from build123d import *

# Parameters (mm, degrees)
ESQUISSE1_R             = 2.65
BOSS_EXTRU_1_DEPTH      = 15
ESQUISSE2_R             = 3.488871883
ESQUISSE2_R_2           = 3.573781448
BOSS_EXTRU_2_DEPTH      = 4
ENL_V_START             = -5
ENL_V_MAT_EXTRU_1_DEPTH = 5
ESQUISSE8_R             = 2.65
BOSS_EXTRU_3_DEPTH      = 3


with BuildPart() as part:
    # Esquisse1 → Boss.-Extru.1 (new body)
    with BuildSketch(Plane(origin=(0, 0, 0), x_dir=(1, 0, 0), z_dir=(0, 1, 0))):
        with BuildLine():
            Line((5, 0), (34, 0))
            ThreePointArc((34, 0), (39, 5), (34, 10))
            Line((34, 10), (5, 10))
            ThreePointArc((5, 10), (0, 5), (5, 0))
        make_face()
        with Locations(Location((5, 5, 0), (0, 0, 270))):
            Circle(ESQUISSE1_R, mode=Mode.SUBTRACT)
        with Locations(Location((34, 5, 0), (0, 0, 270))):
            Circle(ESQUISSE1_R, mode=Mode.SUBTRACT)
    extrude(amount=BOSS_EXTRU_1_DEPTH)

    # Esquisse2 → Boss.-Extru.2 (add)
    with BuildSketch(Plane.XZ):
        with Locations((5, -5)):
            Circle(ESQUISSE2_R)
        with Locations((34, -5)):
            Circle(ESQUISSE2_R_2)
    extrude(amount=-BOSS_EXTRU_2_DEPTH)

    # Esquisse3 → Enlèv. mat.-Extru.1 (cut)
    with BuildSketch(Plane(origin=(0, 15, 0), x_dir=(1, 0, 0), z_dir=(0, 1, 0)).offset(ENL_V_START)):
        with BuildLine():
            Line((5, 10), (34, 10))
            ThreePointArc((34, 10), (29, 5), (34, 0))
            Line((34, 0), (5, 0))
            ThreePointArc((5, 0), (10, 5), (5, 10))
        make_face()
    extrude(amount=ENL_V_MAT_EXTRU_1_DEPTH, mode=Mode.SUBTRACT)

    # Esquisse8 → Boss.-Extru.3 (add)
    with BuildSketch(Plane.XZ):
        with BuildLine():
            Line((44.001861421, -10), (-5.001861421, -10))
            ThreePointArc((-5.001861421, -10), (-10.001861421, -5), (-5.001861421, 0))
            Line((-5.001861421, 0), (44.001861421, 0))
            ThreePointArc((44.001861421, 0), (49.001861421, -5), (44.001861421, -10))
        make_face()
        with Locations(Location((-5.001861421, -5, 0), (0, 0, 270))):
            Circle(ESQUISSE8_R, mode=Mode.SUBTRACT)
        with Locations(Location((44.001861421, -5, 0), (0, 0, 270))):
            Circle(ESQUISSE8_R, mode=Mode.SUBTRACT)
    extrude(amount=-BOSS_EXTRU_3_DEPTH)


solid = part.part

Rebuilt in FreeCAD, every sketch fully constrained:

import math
import FreeCAD as App
import Part
import Sketcher
from FreeCAD import Vector
Q = App.Units.Quantity

doc = App.newDocument("Part")
body = doc.addObject("PartDesign::Body", "Body")

# Sketch on XZ plane
sketch1 = body.newObject("Sketcher::SketchObject", "Sketch")
sketch1.AttachmentSupport = (doc.getObject("XZ_Plane"), [""])
sketch1.MapMode = "FlatFace"
sketch1.addGeometry([
    Part.LineSegment(Vector(5, 0, 0), Vector(34, 0, 0)),  # 0
    Part.ArcOfCircle(Part.Circle(Vector(34, -5, 0), Vector(0, 0, 1), 5), math.radians(-90), math.radians(90)),  # 1
    Part.LineSegment(Vector(34, -10, 0), Vector(5, -10, 0)),  # 2
    Part.ArcOfCircle(Part.Circle(Vector(5, -5, 0), Vector(0, 0, 1), 5), math.radians(90), math.radians(270)),  # 3
    Part.Circle(Vector(5, -5, 0), Vector(0, 0, 1), 2.65),  # 4
    Part.Circle(Vector(34, -5, 0), Vector(0, 0, 1), 2.65),  # 5
], False)
sketch1.addConstraint([
    Sketcher.Constraint("Tangent", 0, 2, 1, 2),
    Sketcher.Constraint("Tangent", 1, 1, 2, 1),
    Sketcher.Constraint("Tangent", 2, 2, 3, 2),
    Sketcher.Constraint("Tangent", 3, 1, 0, 1),
    Sketcher.Constraint("Horizontal", 0),
    Sketcher.Constraint("Horizontal", 2),
    Sketcher.Constraint("Coincident", 4, 3, 3, 3),
    Sketcher.Constraint("Coincident", 5, 3, 1, 3),
    Sketcher.Constraint("Equal", 4, 5),
    Sketcher.Constraint("PointOnObject", 0, 2, -1),
    Sketcher.Constraint("Radius", 1, Q("5 mm")),
    Sketcher.Constraint("Diameter", 4, Q("5.3 mm")),
    Sketcher.Constraint("DistanceX", 0, 1, 0, 2, Q("29 mm")),
    Sketcher.Constraint("DistanceX", -1, 1, 1, 3, Q("34 mm")),
])
pad1 = body.newObject("PartDesign::Pad", "Pad")
pad1.Profile = sketch1
pad1.Length = 15
pad1.Reversed = True

# Sketch on XZ plane
sketch2 = body.newObject("Sketcher::SketchObject", "Sketch001")
sketch2.AttachmentSupport = (doc.getObject("XZ_Plane"), [""])
sketch2.MapMode = "FlatFace"
sketch2.addGeometry([
    Part.Circle(Vector(5, -5, 0), Vector(0, 0, 1), 3.488872),
    Part.Circle(Vector(34, -5, 0), Vector(0, 0, 1), 3.573781),
], False)
sketch2.addConstraint([
    Sketcher.Constraint("Horizontal", 0, 3, 1, 3),
    Sketcher.Constraint("DistanceX", -1, 1, 0, 3, Q("5 mm")),
    Sketcher.Constraint("DistanceY", 0, 3, -1, 1, Q("5 mm")),
    Sketcher.Constraint("DistanceX", -1, 1, 1, 3, Q("34 mm")),
    Sketcher.Constraint("Diameter", 0, Q("6.977744 mm")),
    Sketcher.Constraint("Diameter", 1, Q("7.147563 mm")),
])
pad2 = body.newObject("PartDesign::Pad", "Pad001")
pad2.Profile = sketch2
pad2.Length = 4
pad2.Reversed = True

# Sketch on XZ plane
sketch3 = body.newObject("Sketcher::SketchObject", "Sketch002")
sketch3.AttachmentSupport = (doc.getObject("XZ_Plane"), [""])
sketch3.MapMode = "FlatFace"
sketch3.AttachmentOffset = App.Placement(Vector(0, 0, -10), App.Rotation())
sketch3.addGeometry([
    Part.LineSegment(Vector(34, -10, 0), Vector(5, -10, 0)),
    Part.ArcOfCircle(Part.Circle(Vector(5, -5, 0), Vector(0, 0, 1), 5), math.radians(-90), math.radians(90)),
    Part.LineSegment(Vector(5, 0, 0), Vector(34, 0, 0)),
    Part.ArcOfCircle(Part.Circle(Vector(34, -5, 0), Vector(0, 0, 1), 5), math.radians(90), math.radians(270)),
], False)
sketch3.addConstraint([
    Sketcher.Constraint("Tangent", 0, 2, 1, 1),
    Sketcher.Constraint("Tangent", 1, 2, 2, 1),
    Sketcher.Constraint("Tangent", 2, 2, 3, 1),
    Sketcher.Constraint("Tangent", 3, 2, 0, 1),
    Sketcher.Constraint("Horizontal", 0),
    Sketcher.Constraint("Horizontal", 2),
    Sketcher.Constraint("PointOnObject", 1, 2, -1),
    Sketcher.Constraint("Radius", 1, Q("5 mm")),
    Sketcher.Constraint("DistanceX", 0, 2, 0, 1, Q("29 mm")),
    Sketcher.Constraint("DistanceX", -1, 1, 1, 3, Q("5 mm")),
])
pocket1 = body.newObject("PartDesign::Pocket", "Pocket")
pocket1.Profile = sketch3
pocket1.Length = 5

# Sketch on XZ plane
sketch4 = body.newObject("Sketcher::SketchObject", "Sketch003")
sketch4.AttachmentSupport = (doc.getObject("XZ_Plane"), [""])
sketch4.MapMode = "FlatFace"
sketch4.addGeometry([
    Part.LineSegment(Vector(-5.001861, -10, 0), Vector(44.001861, -10, 0)),  # 0
    Part.ArcOfCircle(Part.Circle(Vector(44.001861, -5, 0), Vector(0, 0, 1), 5), math.radians(-90), math.radians(90)),  # 1
    Part.LineSegment(Vector(44.001861, 0, 0), Vector(-5.001861, 0, 0)),  # 2
    Part.ArcOfCircle(Part.Circle(Vector(-5.001861, -5, 0), Vector(0, 0, 1), 5), math.radians(90), math.radians(270)),  # 3
    Part.Circle(Vector(44.001861, -5, 0), Vector(0, 0, 1), 2.65),  # 4
    Part.Circle(Vector(-5.001861, -5, 0), Vector(0, 0, 1), 2.65),  # 5
], False)
sketch4.addConstraint([
    Sketcher.Constraint("Tangent", 0, 2, 1, 1),
    Sketcher.Constraint("Tangent", 1, 2, 2, 1),
    Sketcher.Constraint("Tangent", 2, 2, 3, 1),
    Sketcher.Constraint("Tangent", 3, 2, 0, 1),
    Sketcher.Constraint("Horizontal", 0),
    Sketcher.Constraint("Horizontal", 2),
    Sketcher.Constraint("Coincident", 4, 3, 1, 3),
    Sketcher.Constraint("Coincident", 5, 3, 3, 3),
    Sketcher.Constraint("Equal", 4, 5),
    Sketcher.Constraint("PointOnObject", 1, 2, -1),
    Sketcher.Constraint("Radius", 1, Q("5 mm")),
    Sketcher.Constraint("Diameter", 4, Q("5.3 mm")),
    Sketcher.Constraint("DistanceX", 0, 1, 0, 2, Q("49.003723 mm")),
    Sketcher.Constraint("DistanceX", -1, 1, 1, 3, Q("44.001861 mm")),
])
pad3 = body.newObject("PartDesign::Pad", "Pad002")
pad3.Profile = sketch4
pad3.Length = 3
pad3.Reversed = True

doc.recompute()
